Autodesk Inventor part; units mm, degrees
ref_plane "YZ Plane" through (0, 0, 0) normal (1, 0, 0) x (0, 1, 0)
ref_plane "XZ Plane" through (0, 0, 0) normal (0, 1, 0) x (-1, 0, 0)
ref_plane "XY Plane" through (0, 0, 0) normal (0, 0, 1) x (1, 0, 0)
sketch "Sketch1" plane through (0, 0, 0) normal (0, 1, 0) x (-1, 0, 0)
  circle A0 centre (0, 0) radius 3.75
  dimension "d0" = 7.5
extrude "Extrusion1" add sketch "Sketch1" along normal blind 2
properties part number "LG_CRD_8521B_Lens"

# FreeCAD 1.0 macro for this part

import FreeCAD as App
import Part
import Sketcher
from FreeCAD import Vector
Q = App.Units.Quantity

doc = App.newDocument("Part")
body = doc.addObject("PartDesign::Body", "Body")

sketch1 = body.newObject("Sketcher::SketchObject", "Sketch")
sketch1.AttachmentSupport = (doc.getObject("XZ_Plane"), [""])
sketch1.MapMode = "FlatFace"
sketch1.addGeometry(Part.Circle(Vector(0, 0, 0), Vector(0, 0, 1), 3.75), False)
sketch1.addConstraint(Sketcher.Constraint("Coincident", 0, 3, -1, 1))
sketch1.addConstraint(Sketcher.Constraint("Diameter", 0, Q("7.5 mm")))
pad1 = body.newObject("PartDesign::Pad", "Pad")
pad1.Profile = sketch1
pad1.Length = 2
pad1.Reversed = True

doc.recompute()
